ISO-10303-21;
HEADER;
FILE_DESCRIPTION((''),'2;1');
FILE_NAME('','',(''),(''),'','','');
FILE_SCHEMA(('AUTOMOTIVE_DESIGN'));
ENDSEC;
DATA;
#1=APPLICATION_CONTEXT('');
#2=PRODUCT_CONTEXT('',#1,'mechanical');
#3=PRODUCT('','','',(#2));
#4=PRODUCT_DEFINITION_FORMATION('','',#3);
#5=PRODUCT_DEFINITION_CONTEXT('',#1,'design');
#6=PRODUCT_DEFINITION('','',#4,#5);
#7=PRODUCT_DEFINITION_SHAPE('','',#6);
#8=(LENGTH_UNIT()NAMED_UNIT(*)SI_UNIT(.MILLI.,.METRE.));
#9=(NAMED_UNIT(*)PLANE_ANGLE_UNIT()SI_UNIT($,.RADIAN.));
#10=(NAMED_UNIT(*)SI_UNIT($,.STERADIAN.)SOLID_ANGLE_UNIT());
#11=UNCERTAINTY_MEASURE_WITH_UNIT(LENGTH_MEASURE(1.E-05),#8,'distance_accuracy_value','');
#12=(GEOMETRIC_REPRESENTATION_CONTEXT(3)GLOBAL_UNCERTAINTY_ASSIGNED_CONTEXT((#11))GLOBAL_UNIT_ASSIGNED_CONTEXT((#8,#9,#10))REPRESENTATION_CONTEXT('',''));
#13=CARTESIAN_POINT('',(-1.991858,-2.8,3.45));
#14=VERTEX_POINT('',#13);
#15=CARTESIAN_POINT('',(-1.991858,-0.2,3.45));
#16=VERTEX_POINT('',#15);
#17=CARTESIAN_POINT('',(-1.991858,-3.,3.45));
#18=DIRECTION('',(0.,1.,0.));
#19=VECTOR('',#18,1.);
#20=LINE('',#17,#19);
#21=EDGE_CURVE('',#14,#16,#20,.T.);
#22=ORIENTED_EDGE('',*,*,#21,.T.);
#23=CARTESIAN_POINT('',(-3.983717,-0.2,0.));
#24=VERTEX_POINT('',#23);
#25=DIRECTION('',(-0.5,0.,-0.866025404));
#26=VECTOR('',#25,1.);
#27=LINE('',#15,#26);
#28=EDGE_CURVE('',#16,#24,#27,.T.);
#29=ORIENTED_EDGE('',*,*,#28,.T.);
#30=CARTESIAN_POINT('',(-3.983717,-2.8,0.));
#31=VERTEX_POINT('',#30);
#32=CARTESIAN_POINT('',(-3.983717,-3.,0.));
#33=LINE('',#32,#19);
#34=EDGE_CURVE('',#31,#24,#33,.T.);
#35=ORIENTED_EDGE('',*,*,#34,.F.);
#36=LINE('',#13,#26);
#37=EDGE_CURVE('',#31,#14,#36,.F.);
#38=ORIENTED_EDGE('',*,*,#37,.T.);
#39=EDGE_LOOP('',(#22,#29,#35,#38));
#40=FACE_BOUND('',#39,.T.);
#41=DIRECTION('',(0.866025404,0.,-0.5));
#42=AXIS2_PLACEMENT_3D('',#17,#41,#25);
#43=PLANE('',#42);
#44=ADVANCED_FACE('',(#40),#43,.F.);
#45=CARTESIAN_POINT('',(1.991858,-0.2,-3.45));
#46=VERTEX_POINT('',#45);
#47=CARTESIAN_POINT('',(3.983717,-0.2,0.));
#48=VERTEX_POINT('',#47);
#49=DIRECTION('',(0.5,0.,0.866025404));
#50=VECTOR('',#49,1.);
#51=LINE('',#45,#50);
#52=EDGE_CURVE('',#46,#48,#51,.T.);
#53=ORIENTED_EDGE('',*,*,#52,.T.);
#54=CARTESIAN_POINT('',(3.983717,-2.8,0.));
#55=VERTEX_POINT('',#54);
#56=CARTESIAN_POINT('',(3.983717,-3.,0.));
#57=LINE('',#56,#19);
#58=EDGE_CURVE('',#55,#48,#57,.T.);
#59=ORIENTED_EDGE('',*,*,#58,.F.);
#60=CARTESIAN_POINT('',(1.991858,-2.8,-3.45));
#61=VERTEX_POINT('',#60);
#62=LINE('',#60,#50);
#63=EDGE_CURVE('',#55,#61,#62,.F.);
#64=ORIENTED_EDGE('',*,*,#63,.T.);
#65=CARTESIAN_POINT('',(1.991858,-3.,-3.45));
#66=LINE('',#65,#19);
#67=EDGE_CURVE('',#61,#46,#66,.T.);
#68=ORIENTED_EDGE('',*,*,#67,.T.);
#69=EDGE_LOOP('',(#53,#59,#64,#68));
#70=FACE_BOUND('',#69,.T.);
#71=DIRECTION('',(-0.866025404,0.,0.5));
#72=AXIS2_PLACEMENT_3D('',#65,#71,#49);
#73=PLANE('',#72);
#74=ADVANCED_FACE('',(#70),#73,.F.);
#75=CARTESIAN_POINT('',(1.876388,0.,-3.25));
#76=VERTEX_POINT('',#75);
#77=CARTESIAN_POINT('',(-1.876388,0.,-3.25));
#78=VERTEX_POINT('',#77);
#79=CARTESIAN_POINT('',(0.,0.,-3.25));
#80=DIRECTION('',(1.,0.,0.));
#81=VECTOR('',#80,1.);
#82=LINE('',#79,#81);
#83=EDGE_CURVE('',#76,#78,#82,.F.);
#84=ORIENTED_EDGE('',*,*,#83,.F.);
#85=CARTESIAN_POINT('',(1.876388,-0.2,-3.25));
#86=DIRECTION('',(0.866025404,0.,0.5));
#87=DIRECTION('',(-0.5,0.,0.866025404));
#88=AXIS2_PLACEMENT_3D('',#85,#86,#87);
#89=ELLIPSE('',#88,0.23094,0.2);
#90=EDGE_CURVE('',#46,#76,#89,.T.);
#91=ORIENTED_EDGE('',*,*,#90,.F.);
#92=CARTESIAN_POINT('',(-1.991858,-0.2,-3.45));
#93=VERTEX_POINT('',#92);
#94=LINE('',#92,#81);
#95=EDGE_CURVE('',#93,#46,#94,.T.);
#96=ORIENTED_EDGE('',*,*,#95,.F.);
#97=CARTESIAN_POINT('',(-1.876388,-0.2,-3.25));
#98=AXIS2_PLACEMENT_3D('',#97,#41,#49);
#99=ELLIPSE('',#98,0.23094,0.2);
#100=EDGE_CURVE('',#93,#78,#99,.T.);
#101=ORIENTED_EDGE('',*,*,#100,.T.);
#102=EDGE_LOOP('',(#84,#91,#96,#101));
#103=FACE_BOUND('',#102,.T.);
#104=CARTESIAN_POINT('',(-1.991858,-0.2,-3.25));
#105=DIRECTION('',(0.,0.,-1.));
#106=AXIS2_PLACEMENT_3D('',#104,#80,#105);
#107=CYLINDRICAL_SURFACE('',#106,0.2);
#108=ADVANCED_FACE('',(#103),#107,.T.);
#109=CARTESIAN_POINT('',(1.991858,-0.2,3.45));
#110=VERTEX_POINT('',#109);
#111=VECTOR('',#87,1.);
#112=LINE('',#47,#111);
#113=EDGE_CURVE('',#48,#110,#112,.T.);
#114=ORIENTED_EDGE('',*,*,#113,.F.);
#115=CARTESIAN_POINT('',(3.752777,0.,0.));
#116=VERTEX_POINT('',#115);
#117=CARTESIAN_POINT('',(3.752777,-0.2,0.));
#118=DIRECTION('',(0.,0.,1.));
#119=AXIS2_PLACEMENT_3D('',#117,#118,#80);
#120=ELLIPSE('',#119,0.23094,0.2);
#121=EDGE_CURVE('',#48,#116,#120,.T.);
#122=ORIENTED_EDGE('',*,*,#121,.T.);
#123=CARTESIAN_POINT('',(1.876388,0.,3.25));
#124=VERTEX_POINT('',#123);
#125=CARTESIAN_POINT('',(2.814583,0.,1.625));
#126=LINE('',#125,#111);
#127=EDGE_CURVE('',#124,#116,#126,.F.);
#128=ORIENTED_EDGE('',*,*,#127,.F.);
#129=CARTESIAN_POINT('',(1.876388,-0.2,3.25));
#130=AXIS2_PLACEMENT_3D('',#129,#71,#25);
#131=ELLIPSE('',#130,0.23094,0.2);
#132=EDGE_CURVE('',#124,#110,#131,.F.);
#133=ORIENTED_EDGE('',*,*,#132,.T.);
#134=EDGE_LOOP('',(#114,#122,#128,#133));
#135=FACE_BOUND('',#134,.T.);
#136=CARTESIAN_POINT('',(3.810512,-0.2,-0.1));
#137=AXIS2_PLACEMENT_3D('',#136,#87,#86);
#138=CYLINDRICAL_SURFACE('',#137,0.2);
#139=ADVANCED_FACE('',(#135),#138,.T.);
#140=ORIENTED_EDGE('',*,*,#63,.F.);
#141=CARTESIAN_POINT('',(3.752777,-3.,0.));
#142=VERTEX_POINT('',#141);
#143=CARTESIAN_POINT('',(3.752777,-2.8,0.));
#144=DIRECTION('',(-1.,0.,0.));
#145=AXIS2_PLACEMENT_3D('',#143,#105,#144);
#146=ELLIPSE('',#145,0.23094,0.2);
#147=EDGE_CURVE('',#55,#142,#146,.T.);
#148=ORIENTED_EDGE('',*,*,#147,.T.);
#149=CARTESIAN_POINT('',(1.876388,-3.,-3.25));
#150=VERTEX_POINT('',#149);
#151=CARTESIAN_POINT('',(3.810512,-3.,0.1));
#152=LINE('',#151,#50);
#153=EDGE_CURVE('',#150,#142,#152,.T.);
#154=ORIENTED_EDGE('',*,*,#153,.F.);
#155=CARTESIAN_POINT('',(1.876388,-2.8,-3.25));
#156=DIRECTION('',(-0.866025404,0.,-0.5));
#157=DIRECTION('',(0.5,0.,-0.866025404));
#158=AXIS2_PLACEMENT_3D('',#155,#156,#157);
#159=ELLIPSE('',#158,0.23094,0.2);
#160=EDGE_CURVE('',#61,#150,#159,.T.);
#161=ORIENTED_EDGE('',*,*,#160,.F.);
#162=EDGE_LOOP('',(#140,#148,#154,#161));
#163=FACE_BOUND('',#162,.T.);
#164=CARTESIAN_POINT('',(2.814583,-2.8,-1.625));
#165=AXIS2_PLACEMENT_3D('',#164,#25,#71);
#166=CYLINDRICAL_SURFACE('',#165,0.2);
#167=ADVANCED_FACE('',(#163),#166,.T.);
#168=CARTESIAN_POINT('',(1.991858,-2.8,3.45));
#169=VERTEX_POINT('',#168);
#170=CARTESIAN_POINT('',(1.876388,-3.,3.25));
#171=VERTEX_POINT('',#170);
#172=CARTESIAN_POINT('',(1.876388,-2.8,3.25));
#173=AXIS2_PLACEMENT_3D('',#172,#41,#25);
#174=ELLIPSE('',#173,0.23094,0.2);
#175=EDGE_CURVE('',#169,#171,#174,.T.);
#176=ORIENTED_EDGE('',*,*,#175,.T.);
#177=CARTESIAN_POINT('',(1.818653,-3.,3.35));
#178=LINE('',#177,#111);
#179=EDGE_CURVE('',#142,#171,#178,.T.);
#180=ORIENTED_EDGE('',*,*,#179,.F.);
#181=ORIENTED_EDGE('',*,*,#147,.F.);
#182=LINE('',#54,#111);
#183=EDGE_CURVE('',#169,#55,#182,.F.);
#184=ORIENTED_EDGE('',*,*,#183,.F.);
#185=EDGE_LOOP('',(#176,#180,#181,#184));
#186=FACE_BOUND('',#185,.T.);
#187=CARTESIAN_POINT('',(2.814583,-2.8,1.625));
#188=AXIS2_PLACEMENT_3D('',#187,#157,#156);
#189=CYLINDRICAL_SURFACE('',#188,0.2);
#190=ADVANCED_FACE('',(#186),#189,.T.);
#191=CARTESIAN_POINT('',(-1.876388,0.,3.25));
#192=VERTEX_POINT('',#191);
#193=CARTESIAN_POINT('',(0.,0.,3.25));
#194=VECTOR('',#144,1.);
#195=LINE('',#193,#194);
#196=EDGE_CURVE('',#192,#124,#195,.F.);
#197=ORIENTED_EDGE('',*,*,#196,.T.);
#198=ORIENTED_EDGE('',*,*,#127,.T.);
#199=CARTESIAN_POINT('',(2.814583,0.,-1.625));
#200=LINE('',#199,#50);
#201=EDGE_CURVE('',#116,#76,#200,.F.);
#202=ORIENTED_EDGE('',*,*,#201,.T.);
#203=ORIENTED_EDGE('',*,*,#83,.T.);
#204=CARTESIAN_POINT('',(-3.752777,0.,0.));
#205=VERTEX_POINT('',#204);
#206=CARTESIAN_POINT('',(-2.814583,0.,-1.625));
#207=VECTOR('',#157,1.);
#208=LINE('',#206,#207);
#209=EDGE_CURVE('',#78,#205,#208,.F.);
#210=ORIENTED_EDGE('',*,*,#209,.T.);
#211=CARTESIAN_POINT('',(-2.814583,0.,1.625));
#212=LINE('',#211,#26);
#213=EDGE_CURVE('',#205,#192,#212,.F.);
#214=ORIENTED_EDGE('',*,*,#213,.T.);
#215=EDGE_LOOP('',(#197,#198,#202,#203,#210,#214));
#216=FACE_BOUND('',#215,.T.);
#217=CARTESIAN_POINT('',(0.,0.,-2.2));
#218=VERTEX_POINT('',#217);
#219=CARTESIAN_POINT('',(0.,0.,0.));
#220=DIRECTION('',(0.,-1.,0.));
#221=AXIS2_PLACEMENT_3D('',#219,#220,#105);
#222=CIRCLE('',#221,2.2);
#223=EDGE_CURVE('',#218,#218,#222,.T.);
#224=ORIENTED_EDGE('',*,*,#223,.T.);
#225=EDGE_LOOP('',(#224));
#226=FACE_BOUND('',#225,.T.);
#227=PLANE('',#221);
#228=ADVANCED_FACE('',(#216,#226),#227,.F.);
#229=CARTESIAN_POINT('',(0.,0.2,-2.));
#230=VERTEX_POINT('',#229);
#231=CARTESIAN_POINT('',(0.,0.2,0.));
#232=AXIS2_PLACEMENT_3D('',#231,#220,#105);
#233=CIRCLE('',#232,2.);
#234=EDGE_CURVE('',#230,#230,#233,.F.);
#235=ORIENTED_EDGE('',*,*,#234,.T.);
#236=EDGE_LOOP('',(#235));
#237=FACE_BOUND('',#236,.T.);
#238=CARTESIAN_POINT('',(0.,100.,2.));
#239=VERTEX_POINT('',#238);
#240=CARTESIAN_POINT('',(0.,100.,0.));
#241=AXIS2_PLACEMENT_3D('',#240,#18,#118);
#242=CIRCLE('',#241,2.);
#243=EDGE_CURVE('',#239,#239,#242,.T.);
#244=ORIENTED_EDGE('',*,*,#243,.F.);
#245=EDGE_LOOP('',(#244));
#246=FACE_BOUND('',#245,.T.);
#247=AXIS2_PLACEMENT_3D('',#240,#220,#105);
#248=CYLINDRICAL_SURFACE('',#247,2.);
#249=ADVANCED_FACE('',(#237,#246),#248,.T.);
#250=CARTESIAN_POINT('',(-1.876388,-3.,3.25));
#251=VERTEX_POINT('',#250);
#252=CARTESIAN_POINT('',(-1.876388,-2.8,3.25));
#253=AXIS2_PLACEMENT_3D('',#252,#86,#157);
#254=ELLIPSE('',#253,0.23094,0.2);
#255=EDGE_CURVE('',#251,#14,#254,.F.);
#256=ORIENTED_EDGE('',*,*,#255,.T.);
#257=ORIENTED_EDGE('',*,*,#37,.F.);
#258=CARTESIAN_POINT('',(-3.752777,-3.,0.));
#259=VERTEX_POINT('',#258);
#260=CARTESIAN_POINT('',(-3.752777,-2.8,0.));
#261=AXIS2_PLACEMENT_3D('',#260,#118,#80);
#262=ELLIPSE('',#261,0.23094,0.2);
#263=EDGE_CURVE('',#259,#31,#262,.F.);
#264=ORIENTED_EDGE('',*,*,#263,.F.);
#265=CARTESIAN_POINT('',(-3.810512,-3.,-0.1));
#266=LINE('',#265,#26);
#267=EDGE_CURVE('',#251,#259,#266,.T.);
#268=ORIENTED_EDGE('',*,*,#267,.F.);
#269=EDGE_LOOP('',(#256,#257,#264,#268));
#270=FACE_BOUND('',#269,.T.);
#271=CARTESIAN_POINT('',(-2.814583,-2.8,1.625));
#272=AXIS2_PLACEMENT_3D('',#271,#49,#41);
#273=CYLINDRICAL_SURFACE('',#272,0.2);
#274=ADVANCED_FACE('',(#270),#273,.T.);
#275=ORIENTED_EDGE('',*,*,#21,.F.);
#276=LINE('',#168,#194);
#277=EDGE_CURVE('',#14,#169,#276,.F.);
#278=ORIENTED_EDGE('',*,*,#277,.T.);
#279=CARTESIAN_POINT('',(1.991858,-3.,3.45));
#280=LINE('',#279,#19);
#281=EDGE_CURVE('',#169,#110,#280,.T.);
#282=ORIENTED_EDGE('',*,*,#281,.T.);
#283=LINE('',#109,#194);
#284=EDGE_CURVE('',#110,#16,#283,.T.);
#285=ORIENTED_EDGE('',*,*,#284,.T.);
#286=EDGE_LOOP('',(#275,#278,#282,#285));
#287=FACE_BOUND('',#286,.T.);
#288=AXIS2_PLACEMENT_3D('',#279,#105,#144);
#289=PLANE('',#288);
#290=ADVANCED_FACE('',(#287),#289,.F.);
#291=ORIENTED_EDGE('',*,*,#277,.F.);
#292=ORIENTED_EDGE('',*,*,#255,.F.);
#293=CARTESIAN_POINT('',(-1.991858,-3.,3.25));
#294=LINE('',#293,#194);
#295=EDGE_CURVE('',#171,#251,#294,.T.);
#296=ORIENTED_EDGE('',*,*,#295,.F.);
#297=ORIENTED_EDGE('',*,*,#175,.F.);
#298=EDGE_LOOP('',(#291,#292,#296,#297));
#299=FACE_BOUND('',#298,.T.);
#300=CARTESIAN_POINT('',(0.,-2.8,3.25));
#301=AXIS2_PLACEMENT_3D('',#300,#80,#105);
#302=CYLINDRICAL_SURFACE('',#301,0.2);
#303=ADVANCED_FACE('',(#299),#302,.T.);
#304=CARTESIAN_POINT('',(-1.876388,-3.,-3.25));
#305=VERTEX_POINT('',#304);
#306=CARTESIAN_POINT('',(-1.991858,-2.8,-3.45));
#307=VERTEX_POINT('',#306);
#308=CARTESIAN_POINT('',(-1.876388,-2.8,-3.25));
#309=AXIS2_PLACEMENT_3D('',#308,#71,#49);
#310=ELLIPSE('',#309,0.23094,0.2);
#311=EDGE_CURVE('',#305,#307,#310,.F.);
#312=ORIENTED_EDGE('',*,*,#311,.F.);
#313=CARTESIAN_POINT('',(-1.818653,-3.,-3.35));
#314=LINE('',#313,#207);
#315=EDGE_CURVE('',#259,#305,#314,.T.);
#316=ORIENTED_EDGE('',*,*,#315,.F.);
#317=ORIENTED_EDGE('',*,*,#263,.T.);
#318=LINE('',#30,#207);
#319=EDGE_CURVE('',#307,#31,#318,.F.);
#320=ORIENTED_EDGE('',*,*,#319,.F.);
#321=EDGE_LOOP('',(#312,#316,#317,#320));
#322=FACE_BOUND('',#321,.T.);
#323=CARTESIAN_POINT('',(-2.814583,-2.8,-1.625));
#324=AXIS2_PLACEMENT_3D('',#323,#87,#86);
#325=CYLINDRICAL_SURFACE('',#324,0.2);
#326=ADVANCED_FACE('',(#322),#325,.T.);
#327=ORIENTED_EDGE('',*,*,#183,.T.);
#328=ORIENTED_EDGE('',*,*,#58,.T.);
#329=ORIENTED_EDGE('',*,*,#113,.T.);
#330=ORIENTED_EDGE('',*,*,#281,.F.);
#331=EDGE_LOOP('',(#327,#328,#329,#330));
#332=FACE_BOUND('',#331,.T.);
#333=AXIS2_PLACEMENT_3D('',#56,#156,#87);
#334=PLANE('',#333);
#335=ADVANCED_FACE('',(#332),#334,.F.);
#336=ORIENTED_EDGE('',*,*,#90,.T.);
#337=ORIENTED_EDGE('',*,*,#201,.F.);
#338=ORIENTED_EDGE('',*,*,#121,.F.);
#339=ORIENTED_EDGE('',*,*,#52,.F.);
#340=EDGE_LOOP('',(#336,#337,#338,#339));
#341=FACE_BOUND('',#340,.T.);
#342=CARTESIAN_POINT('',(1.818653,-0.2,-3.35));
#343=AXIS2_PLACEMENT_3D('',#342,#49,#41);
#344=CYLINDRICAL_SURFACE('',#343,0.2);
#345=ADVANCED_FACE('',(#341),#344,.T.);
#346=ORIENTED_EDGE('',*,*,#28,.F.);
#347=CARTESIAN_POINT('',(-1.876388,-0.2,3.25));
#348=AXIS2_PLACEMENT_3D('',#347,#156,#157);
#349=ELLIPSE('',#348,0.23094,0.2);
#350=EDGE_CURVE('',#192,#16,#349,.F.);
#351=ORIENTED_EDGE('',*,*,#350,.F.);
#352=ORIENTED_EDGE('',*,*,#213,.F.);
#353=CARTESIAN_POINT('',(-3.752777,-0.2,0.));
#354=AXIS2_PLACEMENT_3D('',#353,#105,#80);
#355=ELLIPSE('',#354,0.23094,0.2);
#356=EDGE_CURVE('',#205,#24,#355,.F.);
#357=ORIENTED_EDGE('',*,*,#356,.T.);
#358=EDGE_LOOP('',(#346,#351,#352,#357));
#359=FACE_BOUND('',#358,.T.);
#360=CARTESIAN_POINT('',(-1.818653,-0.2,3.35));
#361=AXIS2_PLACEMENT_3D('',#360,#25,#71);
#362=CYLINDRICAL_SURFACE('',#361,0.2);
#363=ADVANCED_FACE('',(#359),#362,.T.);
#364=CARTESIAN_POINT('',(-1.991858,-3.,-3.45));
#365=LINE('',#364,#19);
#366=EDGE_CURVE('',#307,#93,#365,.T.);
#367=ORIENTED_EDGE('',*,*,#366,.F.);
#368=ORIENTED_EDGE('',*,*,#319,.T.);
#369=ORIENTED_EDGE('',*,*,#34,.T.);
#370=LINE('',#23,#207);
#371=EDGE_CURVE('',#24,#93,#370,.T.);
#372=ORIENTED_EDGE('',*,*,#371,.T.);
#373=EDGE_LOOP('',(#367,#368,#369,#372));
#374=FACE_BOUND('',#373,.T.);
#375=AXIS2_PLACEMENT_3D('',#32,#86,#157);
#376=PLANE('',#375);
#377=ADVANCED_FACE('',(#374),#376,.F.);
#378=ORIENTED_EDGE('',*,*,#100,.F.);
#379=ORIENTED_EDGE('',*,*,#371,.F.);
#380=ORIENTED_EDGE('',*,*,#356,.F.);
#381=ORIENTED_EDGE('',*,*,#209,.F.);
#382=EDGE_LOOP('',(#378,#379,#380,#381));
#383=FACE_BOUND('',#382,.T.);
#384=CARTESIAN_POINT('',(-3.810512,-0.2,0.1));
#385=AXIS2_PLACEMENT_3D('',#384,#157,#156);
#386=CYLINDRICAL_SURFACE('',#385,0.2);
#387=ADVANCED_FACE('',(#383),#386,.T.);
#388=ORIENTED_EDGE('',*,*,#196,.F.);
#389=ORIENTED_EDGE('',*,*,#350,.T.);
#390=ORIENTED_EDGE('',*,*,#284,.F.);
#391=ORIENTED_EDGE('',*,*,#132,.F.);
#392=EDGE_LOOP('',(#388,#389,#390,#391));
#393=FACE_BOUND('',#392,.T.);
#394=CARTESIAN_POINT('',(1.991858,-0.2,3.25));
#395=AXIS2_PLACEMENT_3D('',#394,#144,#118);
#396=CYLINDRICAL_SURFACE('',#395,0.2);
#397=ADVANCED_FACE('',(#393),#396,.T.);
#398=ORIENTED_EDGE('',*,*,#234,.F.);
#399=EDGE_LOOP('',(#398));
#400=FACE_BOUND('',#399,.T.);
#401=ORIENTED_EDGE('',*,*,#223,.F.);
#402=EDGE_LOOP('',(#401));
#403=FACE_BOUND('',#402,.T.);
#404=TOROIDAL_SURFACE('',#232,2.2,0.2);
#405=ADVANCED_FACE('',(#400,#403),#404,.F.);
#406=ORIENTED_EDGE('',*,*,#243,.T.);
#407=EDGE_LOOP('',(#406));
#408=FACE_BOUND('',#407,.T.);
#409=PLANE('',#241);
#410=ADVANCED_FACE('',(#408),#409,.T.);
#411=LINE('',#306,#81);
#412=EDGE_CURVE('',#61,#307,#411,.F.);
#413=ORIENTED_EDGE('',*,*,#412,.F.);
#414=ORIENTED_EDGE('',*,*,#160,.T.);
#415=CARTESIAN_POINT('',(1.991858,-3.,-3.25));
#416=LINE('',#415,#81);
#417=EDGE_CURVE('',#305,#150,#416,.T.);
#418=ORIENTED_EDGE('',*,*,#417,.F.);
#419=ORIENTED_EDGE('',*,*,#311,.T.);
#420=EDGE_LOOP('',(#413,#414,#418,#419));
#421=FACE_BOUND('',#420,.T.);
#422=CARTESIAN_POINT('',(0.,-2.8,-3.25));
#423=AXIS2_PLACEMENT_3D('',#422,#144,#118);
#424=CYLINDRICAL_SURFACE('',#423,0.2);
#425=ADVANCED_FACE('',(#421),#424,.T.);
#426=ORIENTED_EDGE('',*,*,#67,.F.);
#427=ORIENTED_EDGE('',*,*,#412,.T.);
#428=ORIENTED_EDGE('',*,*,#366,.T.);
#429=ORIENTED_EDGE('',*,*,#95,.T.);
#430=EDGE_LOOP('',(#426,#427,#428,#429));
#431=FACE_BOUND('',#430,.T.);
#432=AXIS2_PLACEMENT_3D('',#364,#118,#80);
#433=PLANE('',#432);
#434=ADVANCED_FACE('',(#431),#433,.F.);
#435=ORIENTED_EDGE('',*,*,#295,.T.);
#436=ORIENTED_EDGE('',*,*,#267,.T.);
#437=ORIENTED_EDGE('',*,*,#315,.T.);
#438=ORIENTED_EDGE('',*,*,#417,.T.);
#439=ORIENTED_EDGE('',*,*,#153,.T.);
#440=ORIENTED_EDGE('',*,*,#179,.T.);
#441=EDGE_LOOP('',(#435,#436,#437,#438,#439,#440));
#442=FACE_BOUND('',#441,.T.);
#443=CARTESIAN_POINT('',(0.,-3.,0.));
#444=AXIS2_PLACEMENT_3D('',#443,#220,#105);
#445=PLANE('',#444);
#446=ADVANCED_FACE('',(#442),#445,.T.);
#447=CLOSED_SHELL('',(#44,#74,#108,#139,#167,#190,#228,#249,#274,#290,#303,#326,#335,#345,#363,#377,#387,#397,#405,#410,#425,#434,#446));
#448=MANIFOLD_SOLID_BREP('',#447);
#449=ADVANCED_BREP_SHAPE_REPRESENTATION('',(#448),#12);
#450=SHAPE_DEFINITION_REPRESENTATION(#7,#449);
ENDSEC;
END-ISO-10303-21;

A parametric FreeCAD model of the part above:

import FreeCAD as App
import Part
import Sketcher

V = App.Vector
Q = App.Units.Quantity


def edges_at(feature, points):
    """Names of the edges that pass closest to the given points."""
    edges = feature.Shape.Edges
    near = lambda p: min(range(len(edges)), key=lambda i: edges[i].distToShape(Part.Vertex(*p))[0])
    return sorted({f"Edge{near(p) + 1}" for p in points})

doc = App.newDocument("Part")
body = doc.addObject("PartDesign::Body", "Body")

# Sketch on XZ plane
sketch1 = body.newObject("Sketcher::SketchObject", "Sketch")
sketch1.AttachmentSupport = (doc.getObject("XZ_Plane"), [""])
sketch1.MapMode = "FlatFace"
sketch1.addGeometry(Part.Circle(V(0, 0, 0), V(0, 0, 1), 2), False)
sketch1.addConstraint(Sketcher.Constraint("Coincident", 0, 3, -1, 1))
sketch1.addConstraint(Sketcher.Constraint("Diameter", 0, Q("4 mm")))
pad1 = body.newObject("PartDesign::Pad", "Pad")
pad1.Profile = sketch1
pad1.Length = 100
pad1.Reversed = True

# Sketch on XZ plane
sketch2 = body.newObject("Sketcher::SketchObject", "Sketch001")
sketch2.AttachmentSupport = (doc.getObject("XZ_Plane"), [""])
sketch2.MapMode = "FlatFace"
sketch2.addGeometry(Part.LineSegment(V(4, 0, 0), V(2, 3.5, 0)), False)
sketch2.addGeometry(Part.LineSegment(V(2, 3.5, 0), V(-2, 3.5, 0)), False)
sketch2.addGeometry(Part.LineSegment(V(-2, 3.5, 0), V(-4, 0, 0)), False)
sketch2.addGeometry(Part.LineSegment(V(-4, 0, 0), V(-2, -3.5, 0)), False)
sketch2.addGeometry(Part.LineSegment(V(-2, -3.5, 0), V(2, -3.5, 0)), False)
sketch2.addGeometry(Part.LineSegment(V(2, -3.5, 0), V(4, 0, 0)), False)
sketch2.addConstraint(Sketcher.Constraint("Coincident", 0, 2, 1, 1))
sketch2.addConstraint(Sketcher.Constraint("Coincident", 1, 2, 2, 1))
sketch2.addConstraint(Sketcher.Constraint("Coincident", 2, 2, 3, 1))
sketch2.addConstraint(Sketcher.Constraint("Coincident", 3, 2, 4, 1))
sketch2.addConstraint(Sketcher.Constraint("Coincident", 4, 2, 5, 1))
sketch2.addConstraint(Sketcher.Constraint("Coincident", 5, 2, 0, 1))
sketch2.addConstraint(Sketcher.Constraint("Horizontal", 1))
sketch2.addConstraint(Sketcher.Constraint("Horizontal", 4))
sketch2.addConstraint(Sketcher.Constraint("Symmetric", 0, 2, 3, 2, -1, 1))
sketch2.addConstraint(Sketcher.Constraint("Symmetric", 2, 2, 5, 2, -1, 1))
sketch2.addConstraint(Sketcher.Constraint("PointOnObject", 2, 2, -1))
sketch2.addConstraint(Sketcher.Constraint("Parallel", 2, 5))
sketch2.addConstraint(Sketcher.Constraint("Vertical", 1, 2, 3, 2))
sketch2.addConstraint(Sketcher.Constraint("Angle", 0, Q("120 deg")))
sketch2.addConstraint(Sketcher.Constraint("DistanceY", 3, 2, 1, 2, Q("6.9 mm")))
sketch2.addConstraint(Sketcher.Constraint("DistanceX", 1, 2, 1, 1, Q("3.983717 mm")))
pad2 = body.newObject("PartDesign::Pad", "Pad001")
pad2.Profile = sketch2
pad2.Length = 3
doc.recompute()

fillet = body.newObject("PartDesign::Fillet", "Fillet")
fillet.Base = (pad2, edges_at(pad2, [
    (0, 0, -2),
    (2.988, 0, -1.725),
    (2.988, 0, 1.725),
    (0, 0, 3.45),
    (-2.988, 0, 1.725),
    (-2.988, 0, -1.725),
    (0, 0, -3.45),
    (2.988, -3, -1.725),
    (2.988, -3, 1.725),
    (0, -3, 3.45),
    (-2.988, -3, 1.725),
    (-2.988, -3, -1.725),
    (0, -3, -3.45),
]))
fillet.Radius = 0.2

doc.recompute()
